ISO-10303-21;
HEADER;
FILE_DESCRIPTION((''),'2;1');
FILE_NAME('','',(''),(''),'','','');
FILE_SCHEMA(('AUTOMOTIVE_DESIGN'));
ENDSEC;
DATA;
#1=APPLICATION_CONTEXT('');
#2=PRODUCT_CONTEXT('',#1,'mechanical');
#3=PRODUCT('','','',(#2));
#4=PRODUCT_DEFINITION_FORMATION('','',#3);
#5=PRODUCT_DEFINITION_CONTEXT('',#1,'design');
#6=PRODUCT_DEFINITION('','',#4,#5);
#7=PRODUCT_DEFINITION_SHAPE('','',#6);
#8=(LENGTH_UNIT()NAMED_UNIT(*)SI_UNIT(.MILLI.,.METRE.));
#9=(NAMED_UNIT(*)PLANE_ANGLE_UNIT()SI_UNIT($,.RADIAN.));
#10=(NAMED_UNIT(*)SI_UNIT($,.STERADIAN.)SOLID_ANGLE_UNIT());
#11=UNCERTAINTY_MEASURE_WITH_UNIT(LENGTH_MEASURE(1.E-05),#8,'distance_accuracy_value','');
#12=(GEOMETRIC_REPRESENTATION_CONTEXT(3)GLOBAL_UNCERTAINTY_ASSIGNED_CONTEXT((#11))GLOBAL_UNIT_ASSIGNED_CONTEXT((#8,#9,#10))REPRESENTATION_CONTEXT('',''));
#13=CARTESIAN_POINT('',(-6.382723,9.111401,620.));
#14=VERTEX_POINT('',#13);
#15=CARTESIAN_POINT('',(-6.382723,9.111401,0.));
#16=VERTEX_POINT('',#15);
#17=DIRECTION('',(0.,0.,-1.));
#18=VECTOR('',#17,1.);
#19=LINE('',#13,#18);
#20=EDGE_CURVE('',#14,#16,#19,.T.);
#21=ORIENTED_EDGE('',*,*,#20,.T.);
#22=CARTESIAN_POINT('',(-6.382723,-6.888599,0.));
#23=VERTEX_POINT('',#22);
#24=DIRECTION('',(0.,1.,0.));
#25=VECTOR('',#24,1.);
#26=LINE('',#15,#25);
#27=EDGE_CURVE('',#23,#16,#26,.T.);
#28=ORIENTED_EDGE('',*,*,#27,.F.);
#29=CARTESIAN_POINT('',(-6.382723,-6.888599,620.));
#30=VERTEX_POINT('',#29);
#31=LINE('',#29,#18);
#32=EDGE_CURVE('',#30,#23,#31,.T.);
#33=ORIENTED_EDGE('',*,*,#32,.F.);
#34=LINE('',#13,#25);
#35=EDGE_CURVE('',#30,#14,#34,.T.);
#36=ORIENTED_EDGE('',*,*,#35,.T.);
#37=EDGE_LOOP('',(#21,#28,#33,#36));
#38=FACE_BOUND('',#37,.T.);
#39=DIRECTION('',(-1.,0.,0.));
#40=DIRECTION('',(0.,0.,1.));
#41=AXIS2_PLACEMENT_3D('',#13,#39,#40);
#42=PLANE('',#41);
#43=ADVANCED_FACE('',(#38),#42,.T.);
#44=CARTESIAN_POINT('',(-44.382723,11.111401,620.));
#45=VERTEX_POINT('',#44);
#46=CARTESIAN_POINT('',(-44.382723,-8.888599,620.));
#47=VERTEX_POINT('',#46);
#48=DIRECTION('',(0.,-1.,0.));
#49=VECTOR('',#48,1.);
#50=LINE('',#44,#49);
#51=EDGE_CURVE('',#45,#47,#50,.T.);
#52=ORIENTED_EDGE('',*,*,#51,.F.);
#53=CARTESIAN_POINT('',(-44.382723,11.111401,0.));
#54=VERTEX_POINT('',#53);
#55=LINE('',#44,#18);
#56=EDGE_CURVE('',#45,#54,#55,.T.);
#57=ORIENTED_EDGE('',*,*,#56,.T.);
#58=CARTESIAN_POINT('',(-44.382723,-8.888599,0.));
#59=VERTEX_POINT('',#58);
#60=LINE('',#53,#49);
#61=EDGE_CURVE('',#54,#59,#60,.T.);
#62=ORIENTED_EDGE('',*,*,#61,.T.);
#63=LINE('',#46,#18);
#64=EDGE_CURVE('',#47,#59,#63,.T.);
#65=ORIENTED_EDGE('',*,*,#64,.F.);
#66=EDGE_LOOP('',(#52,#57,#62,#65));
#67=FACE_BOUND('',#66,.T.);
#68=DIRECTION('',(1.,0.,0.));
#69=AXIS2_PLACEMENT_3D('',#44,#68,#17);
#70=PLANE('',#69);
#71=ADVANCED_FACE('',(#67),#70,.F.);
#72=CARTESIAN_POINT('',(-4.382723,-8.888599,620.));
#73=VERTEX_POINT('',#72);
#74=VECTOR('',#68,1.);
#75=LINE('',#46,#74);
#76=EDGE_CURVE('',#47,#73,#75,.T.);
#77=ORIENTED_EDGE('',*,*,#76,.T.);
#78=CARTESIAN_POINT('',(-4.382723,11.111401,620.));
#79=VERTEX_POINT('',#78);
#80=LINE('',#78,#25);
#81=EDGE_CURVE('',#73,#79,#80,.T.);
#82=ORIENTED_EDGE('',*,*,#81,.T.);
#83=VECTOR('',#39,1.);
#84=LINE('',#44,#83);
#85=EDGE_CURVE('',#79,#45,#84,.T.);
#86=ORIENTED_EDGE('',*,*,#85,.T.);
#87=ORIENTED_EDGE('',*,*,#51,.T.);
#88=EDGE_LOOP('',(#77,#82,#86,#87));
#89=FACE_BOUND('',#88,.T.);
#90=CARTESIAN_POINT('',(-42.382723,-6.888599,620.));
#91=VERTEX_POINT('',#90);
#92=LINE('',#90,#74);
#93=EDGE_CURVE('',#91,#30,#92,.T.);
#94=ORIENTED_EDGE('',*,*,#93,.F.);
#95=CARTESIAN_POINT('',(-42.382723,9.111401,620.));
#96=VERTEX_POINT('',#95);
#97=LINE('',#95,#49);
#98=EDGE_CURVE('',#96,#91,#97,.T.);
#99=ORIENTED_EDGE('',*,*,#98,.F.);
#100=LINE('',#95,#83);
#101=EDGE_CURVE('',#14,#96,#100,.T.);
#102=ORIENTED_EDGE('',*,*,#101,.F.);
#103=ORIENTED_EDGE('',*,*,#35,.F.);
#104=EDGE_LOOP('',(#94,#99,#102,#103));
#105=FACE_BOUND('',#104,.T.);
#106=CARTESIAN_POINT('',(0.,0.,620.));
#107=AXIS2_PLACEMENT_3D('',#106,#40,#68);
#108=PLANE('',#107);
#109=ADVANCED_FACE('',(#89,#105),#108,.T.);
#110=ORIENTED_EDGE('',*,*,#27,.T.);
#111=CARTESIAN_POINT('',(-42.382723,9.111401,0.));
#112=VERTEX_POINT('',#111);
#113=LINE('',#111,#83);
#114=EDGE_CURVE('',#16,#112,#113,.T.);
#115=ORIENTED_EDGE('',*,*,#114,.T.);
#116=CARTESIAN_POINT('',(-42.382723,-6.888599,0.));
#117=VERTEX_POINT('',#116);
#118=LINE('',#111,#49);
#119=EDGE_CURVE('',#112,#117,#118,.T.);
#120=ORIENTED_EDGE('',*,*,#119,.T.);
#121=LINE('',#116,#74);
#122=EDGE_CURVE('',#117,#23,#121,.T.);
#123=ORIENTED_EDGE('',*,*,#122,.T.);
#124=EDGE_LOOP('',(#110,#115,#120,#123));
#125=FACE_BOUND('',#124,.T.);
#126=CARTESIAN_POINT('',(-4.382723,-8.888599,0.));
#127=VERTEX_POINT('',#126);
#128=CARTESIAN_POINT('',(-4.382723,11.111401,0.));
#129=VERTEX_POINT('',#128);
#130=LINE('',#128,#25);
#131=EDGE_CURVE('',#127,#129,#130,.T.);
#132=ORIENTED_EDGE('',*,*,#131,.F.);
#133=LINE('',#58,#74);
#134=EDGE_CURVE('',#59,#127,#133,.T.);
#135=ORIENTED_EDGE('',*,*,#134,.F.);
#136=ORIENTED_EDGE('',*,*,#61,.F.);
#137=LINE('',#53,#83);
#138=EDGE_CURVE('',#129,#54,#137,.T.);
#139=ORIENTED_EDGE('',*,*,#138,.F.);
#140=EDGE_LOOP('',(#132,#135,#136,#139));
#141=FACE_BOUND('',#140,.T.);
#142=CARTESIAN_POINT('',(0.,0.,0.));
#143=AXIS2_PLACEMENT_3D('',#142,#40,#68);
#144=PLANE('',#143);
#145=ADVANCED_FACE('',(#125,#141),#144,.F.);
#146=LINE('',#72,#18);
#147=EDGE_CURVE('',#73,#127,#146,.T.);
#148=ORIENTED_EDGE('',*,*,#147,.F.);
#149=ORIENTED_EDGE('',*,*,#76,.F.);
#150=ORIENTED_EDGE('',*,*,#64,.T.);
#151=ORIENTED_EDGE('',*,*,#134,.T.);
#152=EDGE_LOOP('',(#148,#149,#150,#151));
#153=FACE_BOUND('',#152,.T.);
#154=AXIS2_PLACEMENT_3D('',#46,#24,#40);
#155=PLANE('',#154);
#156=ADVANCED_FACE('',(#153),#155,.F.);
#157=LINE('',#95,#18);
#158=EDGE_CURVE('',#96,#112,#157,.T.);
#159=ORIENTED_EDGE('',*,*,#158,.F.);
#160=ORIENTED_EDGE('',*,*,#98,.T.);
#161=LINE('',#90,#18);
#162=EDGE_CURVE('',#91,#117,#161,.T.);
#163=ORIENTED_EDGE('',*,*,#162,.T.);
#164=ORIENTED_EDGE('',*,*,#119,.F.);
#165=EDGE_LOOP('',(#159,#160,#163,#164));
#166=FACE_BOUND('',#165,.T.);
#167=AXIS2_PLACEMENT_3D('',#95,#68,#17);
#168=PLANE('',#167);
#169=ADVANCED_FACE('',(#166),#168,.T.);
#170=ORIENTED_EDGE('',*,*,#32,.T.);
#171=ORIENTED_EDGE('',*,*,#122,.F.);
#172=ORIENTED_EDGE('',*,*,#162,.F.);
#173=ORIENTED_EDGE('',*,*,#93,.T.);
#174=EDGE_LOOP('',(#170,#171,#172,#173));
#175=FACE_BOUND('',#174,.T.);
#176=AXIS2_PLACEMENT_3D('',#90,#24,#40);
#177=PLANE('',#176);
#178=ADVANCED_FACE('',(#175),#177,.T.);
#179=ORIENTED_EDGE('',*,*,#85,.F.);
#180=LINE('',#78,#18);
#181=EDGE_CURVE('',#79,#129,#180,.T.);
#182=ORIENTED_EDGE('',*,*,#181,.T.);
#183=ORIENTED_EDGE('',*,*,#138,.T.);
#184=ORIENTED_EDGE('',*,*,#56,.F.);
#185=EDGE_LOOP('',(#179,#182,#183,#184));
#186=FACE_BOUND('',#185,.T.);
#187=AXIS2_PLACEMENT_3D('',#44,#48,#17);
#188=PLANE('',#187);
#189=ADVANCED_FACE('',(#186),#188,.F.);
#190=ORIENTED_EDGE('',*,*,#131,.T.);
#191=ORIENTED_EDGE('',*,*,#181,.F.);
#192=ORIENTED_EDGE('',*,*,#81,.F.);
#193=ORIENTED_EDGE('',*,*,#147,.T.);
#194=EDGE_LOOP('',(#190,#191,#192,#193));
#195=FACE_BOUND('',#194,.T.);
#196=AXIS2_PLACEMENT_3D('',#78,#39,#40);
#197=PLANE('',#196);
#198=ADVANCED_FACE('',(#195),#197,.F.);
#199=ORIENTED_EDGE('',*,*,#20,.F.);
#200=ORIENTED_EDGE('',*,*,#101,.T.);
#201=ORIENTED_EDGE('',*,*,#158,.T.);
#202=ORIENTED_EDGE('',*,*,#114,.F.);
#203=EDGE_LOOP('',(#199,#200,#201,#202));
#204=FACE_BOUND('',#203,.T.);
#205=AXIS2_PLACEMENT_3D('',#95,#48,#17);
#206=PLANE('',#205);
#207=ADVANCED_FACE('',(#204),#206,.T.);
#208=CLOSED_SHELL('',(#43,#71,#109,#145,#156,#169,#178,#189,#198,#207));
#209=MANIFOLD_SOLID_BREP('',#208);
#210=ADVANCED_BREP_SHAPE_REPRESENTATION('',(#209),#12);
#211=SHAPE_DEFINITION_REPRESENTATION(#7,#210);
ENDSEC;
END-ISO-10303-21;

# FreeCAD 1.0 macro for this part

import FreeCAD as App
import Part
import Sketcher


def add_polygon(sketch, points):
    """Adds a closed chain of lines whose ends are joined by coincident constraints."""
    first, n = sketch.GeometryCount, len(points)
    for a, b in zip(points, points[1:] + points[:1]):
        sketch.addGeometry(Part.LineSegment(App.Vector(*a, 0), App.Vector(*b, 0)), False)
    for i in range(n):
        sketch.addConstraint(Sketcher.Constraint("Coincident", first + i, 2, first + (i + 1) % n, 1))

doc = App.newDocument("Part")
body = doc.addObject("PartDesign::Body", "Body")

sketch1 = body.newObject("Sketcher::SketchObject", "Sketch")
sketch1.AttachmentSupport = (doc.getObject("XY_Plane"), [""])
sketch1.MapMode = "FlatFace"
add_polygon(sketch1, [(-44.382723, 11.111401), (-44.382723, -8.888599), (-4.382723, -8.888599), (-4.382723, 11.111401)])
add_polygon(sketch1, [(-6.382723, -6.888599), (-42.382723, -6.888599), (-42.382723, 9.111401), (-6.382723, 9.111401)])
sketch1.addConstraint([
    Sketcher.Constraint("Vertical", 0),
    Sketcher.Constraint("Horizontal", 1),
    Sketcher.Constraint("Vertical", 2),
    Sketcher.Constraint("Horizontal", 3),
    Sketcher.Constraint("Horizontal", 4),
    Sketcher.Constraint("Vertical", 5),
    Sketcher.Constraint("Horizontal", 6),
    Sketcher.Constraint("Vertical", 7),
    Sketcher.Constraint("DistanceX", 1, 1, 1, 2, 40.0),
    Sketcher.Constraint("DistanceX", 4, 2, 4, 1, 36.0),
    Sketcher.Constraint("DistanceY", 0, 2, 0, 1, 20.0),
    Sketcher.Constraint("DistanceY", 5, 1, 5, 2, 16.0),
    Sketcher.Constraint("DistanceX", 0, 2, 4, 2, 2.0),
    Sketcher.Constraint("DistanceY", 0, 2, 4, 2, 2.0),
    Sketcher.Constraint("DistanceY", 0, 2, -1, 1, 8.888599),
    Sketcher.Constraint("DistanceX", 0, 2, -1, 1, 44.382723),
])
pad1 = body.newObject("PartDesign::Pad", "Pad")
pad1.Profile = sketch1
pad1.Length = 620

doc.recompute()
